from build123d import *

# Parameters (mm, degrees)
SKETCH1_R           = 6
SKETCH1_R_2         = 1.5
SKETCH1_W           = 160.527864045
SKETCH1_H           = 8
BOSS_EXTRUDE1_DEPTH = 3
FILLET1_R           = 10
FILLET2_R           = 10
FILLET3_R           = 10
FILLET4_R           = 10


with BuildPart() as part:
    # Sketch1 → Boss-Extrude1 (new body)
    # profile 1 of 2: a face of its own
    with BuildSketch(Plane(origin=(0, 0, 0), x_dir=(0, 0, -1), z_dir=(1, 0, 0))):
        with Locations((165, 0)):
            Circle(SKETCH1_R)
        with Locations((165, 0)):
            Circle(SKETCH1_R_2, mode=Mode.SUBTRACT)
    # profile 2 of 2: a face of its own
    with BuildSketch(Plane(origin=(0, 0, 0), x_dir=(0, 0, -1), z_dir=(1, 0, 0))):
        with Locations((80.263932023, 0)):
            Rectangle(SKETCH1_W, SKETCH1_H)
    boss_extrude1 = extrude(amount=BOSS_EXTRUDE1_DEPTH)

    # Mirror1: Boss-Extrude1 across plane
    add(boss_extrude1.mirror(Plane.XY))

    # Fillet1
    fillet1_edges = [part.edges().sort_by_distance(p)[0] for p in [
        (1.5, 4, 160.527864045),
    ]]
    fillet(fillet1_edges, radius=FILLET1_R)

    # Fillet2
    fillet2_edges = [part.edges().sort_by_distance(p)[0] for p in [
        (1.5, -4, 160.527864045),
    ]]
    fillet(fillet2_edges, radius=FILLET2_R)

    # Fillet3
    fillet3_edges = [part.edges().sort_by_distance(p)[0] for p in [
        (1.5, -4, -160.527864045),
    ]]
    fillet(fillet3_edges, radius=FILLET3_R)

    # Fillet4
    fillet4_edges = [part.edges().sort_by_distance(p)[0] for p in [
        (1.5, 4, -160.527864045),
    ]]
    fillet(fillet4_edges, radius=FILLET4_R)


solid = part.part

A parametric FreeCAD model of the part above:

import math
import FreeCAD as App
import Part
import Sketcher


def edges_at(feature, points):
    """Names of the edges that pass closest to the given points."""
    edges = feature.Shape.Edges
    near = lambda p: min(range(len(edges)), key=lambda i: edges[i].distToShape(Part.Vertex(*p))[0])
    return sorted({f"Edge{near(p) + 1}" for p in points})

doc = App.newDocument("Part")
body = doc.addObject("PartDesign::Body", "Body")

# Sketch on YZ plane
sketch1 = body.newObject("Sketcher::SketchObject", "Sketch")
sketch1.AttachmentSupport = (doc.getObject("YZ_Plane"), [""])
sketch1.MapMode = "FlatFace"
sketch1.addGeometry([
    Part.ArcOfCircle(Part.Circle(App.Vector(0, -165, 0), App.Vector(0, 0, 1), 6), math.radians(132), math.radians(408)),  # 0
    Part.LineSegment(App.Vector(4, -160.5, 0), App.Vector(4, 0, 0)),  # 1
    Part.LineSegment(App.Vector(4, 0, 0), App.Vector(-4, 0, 0)),  # 2
    Part.LineSegment(App.Vector(-4, 0, 0), App.Vector(-4, -160.5, 0)),  # 3
    Part.Circle(App.Vector(0, -165, 0), App.Vector(0, 0, 1), 1.5),  # 4
], False)
sketch1.addConstraint([
    Sketcher.Constraint("Coincident", 0, 2, 1, 1),
    Sketcher.Constraint("Coincident", 1, 2, 2, 1),
    Sketcher.Constraint("Coincident", 2, 2, 3, 1),
    Sketcher.Constraint("Coincident", 3, 2, 0, 1),
    Sketcher.Constraint("Vertical", 1),
    Sketcher.Constraint("Horizontal", 2),
    Sketcher.Constraint("Vertical", 3),
    Sketcher.Constraint("Coincident", 4, 3, 0, 3),
    Sketcher.Constraint("Symmetric", 1, 2, 2, 2, -1, 1),
    Sketcher.Constraint("PointOnObject", 0, 3, -2),
    Sketcher.Constraint("Diameter", 4, 3.0),
    Sketcher.Constraint("Radius", 0, 6.0),
    Sketcher.Constraint("DistanceX", 2, 2, 2, 1, 8.0),
    Sketcher.Constraint("DistanceY", 0, 3, -1, 1, 165.0),
])
pad1 = body.newObject("PartDesign::Pad", "Pad")
pad1.Profile = sketch1
pad1.Length = 3
doc.recompute()

mirrored = body.newObject("PartDesign::Mirrored", "Mirrored")
mirrored.Originals = [pad1]
mirrored.MirrorPlane = (doc.getObject("XY_Plane"), [""])
body.Tip = mirrored
doc.recompute()

fillet = body.newObject("PartDesign::Fillet", "Fillet")
fillet.Base = (mirrored, edges_at(mirrored, [(1.5, 4, 160.528)]))
fillet.Radius = 10
doc.recompute()

fillet2 = body.newObject("PartDesign::Fillet", "Fillet001")
fillet2.Base = (fillet, edges_at(fillet, [(1.5, -4, 160.528)]))
fillet2.Radius = 10
doc.recompute()

fillet3 = body.newObject("PartDesign::Fillet", "Fillet002")
fillet3.Base = (fillet2, edges_at(fillet2, [(1.5, -4, -160.528)]))
fillet3.Radius = 10
doc.recompute()

fillet4 = body.newObject("PartDesign::Fillet", "Fillet003")
fillet4.Base = (fillet3, edges_at(fillet3, [(1.5, 4, -160.528)]))
fillet4.Radius = 10

doc.recompute()
